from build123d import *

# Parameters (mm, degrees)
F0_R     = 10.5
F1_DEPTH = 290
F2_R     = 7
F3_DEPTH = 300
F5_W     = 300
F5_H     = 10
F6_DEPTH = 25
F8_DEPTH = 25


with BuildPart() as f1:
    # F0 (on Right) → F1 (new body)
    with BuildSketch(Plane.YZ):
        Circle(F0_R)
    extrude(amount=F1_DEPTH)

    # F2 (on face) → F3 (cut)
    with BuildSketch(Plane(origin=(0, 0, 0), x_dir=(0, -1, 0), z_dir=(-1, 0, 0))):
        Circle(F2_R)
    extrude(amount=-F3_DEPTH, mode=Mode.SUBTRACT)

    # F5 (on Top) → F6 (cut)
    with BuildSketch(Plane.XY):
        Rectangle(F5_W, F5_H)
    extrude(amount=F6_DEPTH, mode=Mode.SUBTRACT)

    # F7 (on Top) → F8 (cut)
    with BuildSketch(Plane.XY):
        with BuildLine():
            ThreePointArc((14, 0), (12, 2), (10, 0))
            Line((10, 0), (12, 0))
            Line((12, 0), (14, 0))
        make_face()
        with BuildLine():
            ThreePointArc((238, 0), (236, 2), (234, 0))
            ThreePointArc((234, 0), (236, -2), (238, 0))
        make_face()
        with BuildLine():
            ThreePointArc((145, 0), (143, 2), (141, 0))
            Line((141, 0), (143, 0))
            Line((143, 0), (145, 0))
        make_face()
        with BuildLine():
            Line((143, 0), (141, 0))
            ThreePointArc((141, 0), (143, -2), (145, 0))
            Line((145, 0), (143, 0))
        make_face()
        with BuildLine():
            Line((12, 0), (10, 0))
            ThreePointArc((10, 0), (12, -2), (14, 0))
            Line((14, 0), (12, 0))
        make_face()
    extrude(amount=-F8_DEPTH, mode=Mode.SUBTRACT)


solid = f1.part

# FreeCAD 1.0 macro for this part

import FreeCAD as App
import Part
import Sketcher
from FreeCAD import Vector
Q = App.Units.Quantity

doc = App.newDocument("Part")
params = doc.addObject("Spreadsheet::Sheet", "Params")
for row, (alias, value) in enumerate([
    ("sketch1_diameter", "21 mm"),
    ("pad1_length", "290 mm"),
    ("sketch2_diameter", "14 mm"),
    ("pocket1_length", "300 mm"),
    ("sketch3_width", "300 mm"),
    ("sketch3_height", "10 mm"),
    ("pocket2_length", "25 mm"),
    ("sketch4_diameter", "4 mm"),
    ("pocket3_length", "25 mm"),
], start=1):
    params.set(f"A{row}", alias)
    params.set(f"B{row}", "=" + value)
    params.setAlias(f"B{row}", alias)

body = doc.addObject("PartDesign::Body", "Body")

# Sketch on YZ plane
sketch1 = body.newObject("Sketcher::SketchObject", "Sketch")
sketch1.AttachmentSupport = (doc.getObject("YZ_Plane"), [""])
sketch1.MapMode = "FlatFace"
sketch1.addGeometry(Part.Circle(Vector(0, 0, 0), Vector(0, 0, 1), 10), False)
sketch1.addConstraint([
    Sketcher.Constraint("Coincident", 0, 3, -1, 1),
    Sketcher.Constraint("Diameter", 0, Q("21 mm")),
])
sketch1.setExpression("Constraints[1]", "Params.sketch1_diameter")
pad1 = body.newObject("PartDesign::Pad", "Pad")
pad1.Profile = sketch1
pad1.setExpression("Length", "Params.pad1_length")

# Sketch on YZ plane
sketch2 = body.newObject("Sketcher::SketchObject", "Sketch001")
sketch2.AttachmentSupport = (doc.getObject("YZ_Plane"), [""])
sketch2.MapMode = "FlatFace"
sketch2.addGeometry(Part.Circle(Vector(0, 0, 0), Vector(0, 0, 1), 7), False)
sketch2.addConstraint([
    Sketcher.Constraint("Coincident", 0, 3, -1, 1),
    Sketcher.Constraint("Diameter", 0, Q("14 mm")),
])
sketch2.setExpression("Constraints[1]", "Params.sketch2_diameter")
pocket1 = body.newObject("PartDesign::Pocket", "Pocket")
pocket1.Profile = sketch2
pocket1.setExpression("Length", "Params.pocket1_length")
pocket1.Reversed = True

# Sketch on XY plane
sketch3 = body.newObject("Sketcher::SketchObject", "Sketch002")
sketch3.AttachmentSupport = (doc.getObject("XY_Plane"), [""])
sketch3.MapMode = "FlatFace"
sketch3.addGeometry([
    Part.LineSegment(Vector(-150, 5, 0), Vector(-150, -5, 0)),
    Part.LineSegment(Vector(-150, -5, 0), Vector(150, -5, 0)),
    Part.LineSegment(Vector(150, -5, 0), Vector(150, 5, 0)),
    Part.LineSegment(Vector(150, 5, 0), Vector(-150, 5, 0)),
], False)
sketch3.addConstraint([
    Sketcher.Constraint("Coincident", 0, 2, 1, 1),
    Sketcher.Constraint("Coincident", 1, 2, 2, 1),
    Sketcher.Constraint("Coincident", 2, 2, 3, 1),
    Sketcher.Constraint("Coincident", 3, 2, 0, 1),
    Sketcher.Constraint("Vertical", 0),
    Sketcher.Constraint("Horizontal", 1),
    Sketcher.Constraint("Vertical", 2),
    Sketcher.Constraint("Horizontal", 3),
    Sketcher.Constraint("Symmetric", 0, 2, 2, 2, -1, 1),
    Sketcher.Constraint("DistanceX", 1, 1, 1, 2, Q("300 mm")),
    Sketcher.Constraint("DistanceY", 0, 2, 0, 1, Q("10 mm")),
])
sketch3.setExpression("Constraints[9]", "Params.sketch3_width")
sketch3.setExpression("Constraints[10]", "Params.sketch3_height")
pocket2 = body.newObject("PartDesign::Pocket", "Pocket001")
pocket2.Profile = sketch3
pocket2.setExpression("Length", "Params.pocket2_length")
pocket2.Reversed = True

# Sketch on XY plane
sketch4 = body.newObject("Sketcher::SketchObject", "Sketch003")
sketch4.AttachmentSupport = (doc.getObject("XY_Plane"), [""])
sketch4.MapMode = "FlatFace"
sketch4.addGeometry([
    Part.Circle(Vector(12, 0, 0), Vector(0, 0, 1), 2),
    Part.Circle(Vector(236, 0, 0), Vector(0, 0, 1), 2),
    Part.Circle(Vector(143, 0, 0), Vector(0, 0, 1), 2),
], False)
sketch4.addConstraint([
    Sketcher.Constraint("Equal", 0, 1),
    Sketcher.Constraint("Equal", 1, 2),
    Sketcher.Constraint("PointOnObject", 0, 3, -1),
    Sketcher.Constraint("PointOnObject", 1, 3, -1),
    Sketcher.Constraint("PointOnObject", 2, 3, -1),
    Sketcher.Constraint("Diameter", 0, Q("4 mm")),
    Sketcher.Constraint("DistanceX", -1, 1, 0, 3, Q("12 mm")),
    Sketcher.Constraint("DistanceX", -1, 1, 1, 3, Q("236 mm")),
    Sketcher.Constraint("DistanceX", -1, 1, 2, 3, Q("143 mm")),
])
sketch4.setExpression("Constraints[5]", "Params.sketch4_diameter")
pocket3 = body.newObject("PartDesign::Pocket", "Pocket002")
pocket3.Profile = sketch4
pocket3.setExpression("Length", "Params.pocket3_length")

doc.recompute()
